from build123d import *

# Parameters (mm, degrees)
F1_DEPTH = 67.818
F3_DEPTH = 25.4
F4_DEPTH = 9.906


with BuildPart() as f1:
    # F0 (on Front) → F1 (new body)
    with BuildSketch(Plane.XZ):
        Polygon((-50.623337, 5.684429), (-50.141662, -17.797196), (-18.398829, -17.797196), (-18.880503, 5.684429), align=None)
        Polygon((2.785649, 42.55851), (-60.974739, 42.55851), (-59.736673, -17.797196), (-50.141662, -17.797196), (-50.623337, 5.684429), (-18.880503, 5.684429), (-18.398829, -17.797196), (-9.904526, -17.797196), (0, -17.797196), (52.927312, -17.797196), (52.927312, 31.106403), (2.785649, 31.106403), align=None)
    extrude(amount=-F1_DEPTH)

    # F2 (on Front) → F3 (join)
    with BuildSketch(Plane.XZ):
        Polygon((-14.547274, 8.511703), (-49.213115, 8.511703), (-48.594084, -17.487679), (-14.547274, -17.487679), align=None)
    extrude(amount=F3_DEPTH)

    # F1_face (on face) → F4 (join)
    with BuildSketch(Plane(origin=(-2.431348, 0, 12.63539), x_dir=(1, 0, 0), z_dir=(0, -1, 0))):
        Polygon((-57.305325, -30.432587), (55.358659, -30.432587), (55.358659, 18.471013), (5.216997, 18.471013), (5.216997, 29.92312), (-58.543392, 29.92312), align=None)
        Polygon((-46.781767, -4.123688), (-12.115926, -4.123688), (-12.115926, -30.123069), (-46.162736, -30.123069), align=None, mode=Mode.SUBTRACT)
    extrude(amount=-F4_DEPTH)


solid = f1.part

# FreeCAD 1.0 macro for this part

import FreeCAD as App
import Part
import Sketcher

doc = App.newDocument("Part")
params = doc.addObject("Spreadsheet::Sheet", "Params")
for row, (alias, value) in enumerate([
    ("pad1_length", "2.67 in"),
    ("pad2_length", "1 in"),
    ("pad3_length", "0.39 in"),
], start=1):
    params.set(f"A{row}", alias)
    params.set(f"B{row}", "=" + value)
    params.setAlias(f"B{row}", alias)

body = doc.addObject("PartDesign::Body", "Body")

sketch1 = body.newObject("Sketcher::SketchObject", "Sketch")
sketch1.AttachmentSupport = (doc.getObject("XZ_Plane"), [""])
sketch1.MapMode = "FlatFace"
sketch1.addGeometry([
    Part.LineSegment(App.Vector(53, -18, 0), App.Vector(53, 31, 0)),
    Part.LineSegment(App.Vector(53, 31, 0), App.Vector(3, 31, 0)),
    Part.LineSegment(App.Vector(3, 31, 0), App.Vector(3, 43, 0)),
    Part.LineSegment(App.Vector(3, 43, 0), App.Vector(-61, 43, 0)),
    Part.LineSegment(App.Vector(-61, 43, 0), App.Vector(-60, -18, 0)),
    Part.LineSegment(App.Vector(-60, -18, 0), App.Vector(53, -18, 0)),
], False)
sketch1.addConstraint([
    Sketcher.Constraint("Coincident", 0, 2, 1, 1),
    Sketcher.Constraint("Coincident", 1, 2, 2, 1),
    Sketcher.Constraint("Coincident", 2, 2, 3, 1),
    Sketcher.Constraint("Coincident", 3, 2, 4, 1),
    Sketcher.Constraint("Coincident", 4, 2, 5, 1),
    Sketcher.Constraint("Coincident", 5, 2, 0, 1),
    Sketcher.Constraint("Vertical", 0),
    Sketcher.Constraint("Horizontal", 1),
    Sketcher.Constraint("Vertical", 2),
    Sketcher.Constraint("Horizontal", 3),
    Sketcher.Constraint("Horizontal", 5),
    Sketcher.Constraint("DistanceY", 0, 1, 0, 2, 48.903599),
    Sketcher.Constraint("DistanceX", 1, 2, 1, 1, 50.141663),
    Sketcher.Constraint("DistanceX", 3, 2, 3, 1, 63.760388),
    Sketcher.Constraint("DistanceX", 5, 1, 5, 2, 112.663985),
    Sketcher.Constraint("DistanceY", 2, 1, 2, 2, 11.452107),
    Sketcher.Constraint("DistanceX", -1, 1, 1, 2, 2.785649),
    Sketcher.Constraint("DistanceY", -1, 1, 2, 2, 42.55851),
])
pad1 = body.newObject("PartDesign::Pad", "Pad")
pad1.Profile = sketch1
pad1.setExpression("Length", "Params.pad1_length")
pad1.Reversed = True

sketch2 = body.newObject("Sketcher::SketchObject", "Sketch001")
sketch2.AttachmentSupport = (doc.getObject("XZ_Plane"), [""])
sketch2.MapMode = "FlatFace"
sketch2.addGeometry([
    Part.LineSegment(App.Vector(-15, 9, 0), App.Vector(-49, 9, 0)),
    Part.LineSegment(App.Vector(-49, 9, 0), App.Vector(-49, -17, 0)),
    Part.LineSegment(App.Vector(-49, -17, 0), App.Vector(-15, -17, 0)),
    Part.LineSegment(App.Vector(-15, -17, 0), App.Vector(-15, 9, 0)),
], False)
sketch2.addConstraint([
    Sketcher.Constraint("Coincident", 0, 2, 1, 1),
    Sketcher.Constraint("Coincident", 1, 2, 2, 1),
    Sketcher.Constraint("Coincident", 2, 2, 3, 1),
    Sketcher.Constraint("Coincident", 3, 2, 0, 1),
    Sketcher.Constraint("Horizontal", 0),
    Sketcher.Constraint("Horizontal", 2),
    Sketcher.Constraint("Vertical", 3),
    Sketcher.Constraint("DistanceX", 0, 2, 0, 1, 34.665841),
    Sketcher.Constraint("DistanceX", 2, 1, 2, 2, 34.04681),
    Sketcher.Constraint("Distance", 1, 26.00675),
    Sketcher.Constraint("DistanceY", 1, 2, -1, 1, 17.487679),
    Sketcher.Constraint("DistanceX", 0, 2, -1, 1, 49.213115),
])
pad2 = body.newObject("PartDesign::Pad", "Pad001")
pad2.Profile = sketch2
pad2.setExpression("Length", "Params.pad2_length")

sketch3 = body.newObject("Sketcher::SketchObject", "Sketch002")
sketch3.AttachmentSupport = (doc.getObject("XZ_Plane"), [""])
sketch3.MapMode = "FlatFace"
sketch3.addGeometry([
    Part.LineSegment(App.Vector(-60, -18, 0), App.Vector(53, -18, 0)),
    Part.LineSegment(App.Vector(53, -18, 0), App.Vector(53, 31, 0)),
    Part.LineSegment(App.Vector(53, 31, 0), App.Vector(3, 31, 0)),
    Part.LineSegment(App.Vector(3, 31, 0), App.Vector(3, 43, 0)),
    Part.LineSegment(App.Vector(3, 43, 0), App.Vector(-61, 43, 0)),
    Part.LineSegment(App.Vector(-61, 43, 0), App.Vector(-60, -18, 0)),
    Part.LineSegment(App.Vector(-49, -17, 0), App.Vector(-49, 9, 0)),
    Part.LineSegment(App.Vector(-49, 9, 0), App.Vector(-15, 9, 0)),
    Part.LineSegment(App.Vector(-15, 9, 0), App.Vector(-15, -17, 0)),
    Part.LineSegment(App.Vector(-15, -17, 0), App.Vector(-49, -17, 0)),
], False)
sketch3.addConstraint([
    Sketcher.Constraint("Coincident", 0, 2, 1, 1),
    Sketcher.Constraint("Coincident", 1, 2, 2, 1),
    Sketcher.Constraint("Coincident", 2, 2, 3, 1),
    Sketcher.Constraint("Coincident", 3, 2, 4, 1),
    Sketcher.Constraint("Coincident", 4, 2, 5, 1),
    Sketcher.Constraint("Coincident", 5, 2, 0, 1),
    Sketcher.Constraint("Coincident", 6, 2, 7, 1),
    Sketcher.Constraint("Coincident", 7, 2, 8, 1),
    Sketcher.Constraint("Coincident", 8, 2, 9, 1),
    Sketcher.Constraint("Coincident", 9, 2, 6, 1),
    Sketcher.Constraint("Horizontal", 0),
    Sketcher.Constraint("Vertical", 1),
    Sketcher.Constraint("Horizontal", 2),
    Sketcher.Constraint("Vertical", 3),
    Sketcher.Constraint("Horizontal", 4),
    Sketcher.Constraint("Horizontal", 7),
    Sketcher.Constraint("Vertical", 8),
    Sketcher.Constraint("Horizontal", 9),
    Sketcher.Constraint("DistanceY", 1, 1, 1, 2, 48.9036),
    Sketcher.Constraint("DistanceX", 4, 2, 4, 1, 63.760389),
    Sketcher.Constraint("DistanceX", 7, 1, 7, 2, 34.665841),
    Sketcher.Constraint("DistanceX", 9, 2, 9, 1, 34.04681),
    Sketcher.Constraint("DistanceY", 8, 2, 8, 1, 25.999381),
    Sketcher.Constraint("DistanceY", 5, 2, 6, 2, 26.308899),
    Sketcher.Constraint("DistanceX", 5, 2, 7, 2, 45.189399),
    Sketcher.Constraint("DistanceX", 0, 1, 0, 2, 112.663984),
    Sketcher.Constraint("DistanceX", 2, 2, 2, 1, 50.141662),
    Sketcher.Constraint("DistanceY", 3, 1, 3, 2, 11.452107),
    Sketcher.Constraint("DistanceX", -1, 1, 0, 2, 52.927311),
    Sketcher.Constraint("DistanceY", -1, 1, 3, 2, 42.55851),
])
pad3 = body.newObject("PartDesign::Pad", "Pad002")
pad3.Profile = sketch3
pad3.setExpression("Length", "Params.pad3_length")
pad3.Reversed = True

doc.recompute()
